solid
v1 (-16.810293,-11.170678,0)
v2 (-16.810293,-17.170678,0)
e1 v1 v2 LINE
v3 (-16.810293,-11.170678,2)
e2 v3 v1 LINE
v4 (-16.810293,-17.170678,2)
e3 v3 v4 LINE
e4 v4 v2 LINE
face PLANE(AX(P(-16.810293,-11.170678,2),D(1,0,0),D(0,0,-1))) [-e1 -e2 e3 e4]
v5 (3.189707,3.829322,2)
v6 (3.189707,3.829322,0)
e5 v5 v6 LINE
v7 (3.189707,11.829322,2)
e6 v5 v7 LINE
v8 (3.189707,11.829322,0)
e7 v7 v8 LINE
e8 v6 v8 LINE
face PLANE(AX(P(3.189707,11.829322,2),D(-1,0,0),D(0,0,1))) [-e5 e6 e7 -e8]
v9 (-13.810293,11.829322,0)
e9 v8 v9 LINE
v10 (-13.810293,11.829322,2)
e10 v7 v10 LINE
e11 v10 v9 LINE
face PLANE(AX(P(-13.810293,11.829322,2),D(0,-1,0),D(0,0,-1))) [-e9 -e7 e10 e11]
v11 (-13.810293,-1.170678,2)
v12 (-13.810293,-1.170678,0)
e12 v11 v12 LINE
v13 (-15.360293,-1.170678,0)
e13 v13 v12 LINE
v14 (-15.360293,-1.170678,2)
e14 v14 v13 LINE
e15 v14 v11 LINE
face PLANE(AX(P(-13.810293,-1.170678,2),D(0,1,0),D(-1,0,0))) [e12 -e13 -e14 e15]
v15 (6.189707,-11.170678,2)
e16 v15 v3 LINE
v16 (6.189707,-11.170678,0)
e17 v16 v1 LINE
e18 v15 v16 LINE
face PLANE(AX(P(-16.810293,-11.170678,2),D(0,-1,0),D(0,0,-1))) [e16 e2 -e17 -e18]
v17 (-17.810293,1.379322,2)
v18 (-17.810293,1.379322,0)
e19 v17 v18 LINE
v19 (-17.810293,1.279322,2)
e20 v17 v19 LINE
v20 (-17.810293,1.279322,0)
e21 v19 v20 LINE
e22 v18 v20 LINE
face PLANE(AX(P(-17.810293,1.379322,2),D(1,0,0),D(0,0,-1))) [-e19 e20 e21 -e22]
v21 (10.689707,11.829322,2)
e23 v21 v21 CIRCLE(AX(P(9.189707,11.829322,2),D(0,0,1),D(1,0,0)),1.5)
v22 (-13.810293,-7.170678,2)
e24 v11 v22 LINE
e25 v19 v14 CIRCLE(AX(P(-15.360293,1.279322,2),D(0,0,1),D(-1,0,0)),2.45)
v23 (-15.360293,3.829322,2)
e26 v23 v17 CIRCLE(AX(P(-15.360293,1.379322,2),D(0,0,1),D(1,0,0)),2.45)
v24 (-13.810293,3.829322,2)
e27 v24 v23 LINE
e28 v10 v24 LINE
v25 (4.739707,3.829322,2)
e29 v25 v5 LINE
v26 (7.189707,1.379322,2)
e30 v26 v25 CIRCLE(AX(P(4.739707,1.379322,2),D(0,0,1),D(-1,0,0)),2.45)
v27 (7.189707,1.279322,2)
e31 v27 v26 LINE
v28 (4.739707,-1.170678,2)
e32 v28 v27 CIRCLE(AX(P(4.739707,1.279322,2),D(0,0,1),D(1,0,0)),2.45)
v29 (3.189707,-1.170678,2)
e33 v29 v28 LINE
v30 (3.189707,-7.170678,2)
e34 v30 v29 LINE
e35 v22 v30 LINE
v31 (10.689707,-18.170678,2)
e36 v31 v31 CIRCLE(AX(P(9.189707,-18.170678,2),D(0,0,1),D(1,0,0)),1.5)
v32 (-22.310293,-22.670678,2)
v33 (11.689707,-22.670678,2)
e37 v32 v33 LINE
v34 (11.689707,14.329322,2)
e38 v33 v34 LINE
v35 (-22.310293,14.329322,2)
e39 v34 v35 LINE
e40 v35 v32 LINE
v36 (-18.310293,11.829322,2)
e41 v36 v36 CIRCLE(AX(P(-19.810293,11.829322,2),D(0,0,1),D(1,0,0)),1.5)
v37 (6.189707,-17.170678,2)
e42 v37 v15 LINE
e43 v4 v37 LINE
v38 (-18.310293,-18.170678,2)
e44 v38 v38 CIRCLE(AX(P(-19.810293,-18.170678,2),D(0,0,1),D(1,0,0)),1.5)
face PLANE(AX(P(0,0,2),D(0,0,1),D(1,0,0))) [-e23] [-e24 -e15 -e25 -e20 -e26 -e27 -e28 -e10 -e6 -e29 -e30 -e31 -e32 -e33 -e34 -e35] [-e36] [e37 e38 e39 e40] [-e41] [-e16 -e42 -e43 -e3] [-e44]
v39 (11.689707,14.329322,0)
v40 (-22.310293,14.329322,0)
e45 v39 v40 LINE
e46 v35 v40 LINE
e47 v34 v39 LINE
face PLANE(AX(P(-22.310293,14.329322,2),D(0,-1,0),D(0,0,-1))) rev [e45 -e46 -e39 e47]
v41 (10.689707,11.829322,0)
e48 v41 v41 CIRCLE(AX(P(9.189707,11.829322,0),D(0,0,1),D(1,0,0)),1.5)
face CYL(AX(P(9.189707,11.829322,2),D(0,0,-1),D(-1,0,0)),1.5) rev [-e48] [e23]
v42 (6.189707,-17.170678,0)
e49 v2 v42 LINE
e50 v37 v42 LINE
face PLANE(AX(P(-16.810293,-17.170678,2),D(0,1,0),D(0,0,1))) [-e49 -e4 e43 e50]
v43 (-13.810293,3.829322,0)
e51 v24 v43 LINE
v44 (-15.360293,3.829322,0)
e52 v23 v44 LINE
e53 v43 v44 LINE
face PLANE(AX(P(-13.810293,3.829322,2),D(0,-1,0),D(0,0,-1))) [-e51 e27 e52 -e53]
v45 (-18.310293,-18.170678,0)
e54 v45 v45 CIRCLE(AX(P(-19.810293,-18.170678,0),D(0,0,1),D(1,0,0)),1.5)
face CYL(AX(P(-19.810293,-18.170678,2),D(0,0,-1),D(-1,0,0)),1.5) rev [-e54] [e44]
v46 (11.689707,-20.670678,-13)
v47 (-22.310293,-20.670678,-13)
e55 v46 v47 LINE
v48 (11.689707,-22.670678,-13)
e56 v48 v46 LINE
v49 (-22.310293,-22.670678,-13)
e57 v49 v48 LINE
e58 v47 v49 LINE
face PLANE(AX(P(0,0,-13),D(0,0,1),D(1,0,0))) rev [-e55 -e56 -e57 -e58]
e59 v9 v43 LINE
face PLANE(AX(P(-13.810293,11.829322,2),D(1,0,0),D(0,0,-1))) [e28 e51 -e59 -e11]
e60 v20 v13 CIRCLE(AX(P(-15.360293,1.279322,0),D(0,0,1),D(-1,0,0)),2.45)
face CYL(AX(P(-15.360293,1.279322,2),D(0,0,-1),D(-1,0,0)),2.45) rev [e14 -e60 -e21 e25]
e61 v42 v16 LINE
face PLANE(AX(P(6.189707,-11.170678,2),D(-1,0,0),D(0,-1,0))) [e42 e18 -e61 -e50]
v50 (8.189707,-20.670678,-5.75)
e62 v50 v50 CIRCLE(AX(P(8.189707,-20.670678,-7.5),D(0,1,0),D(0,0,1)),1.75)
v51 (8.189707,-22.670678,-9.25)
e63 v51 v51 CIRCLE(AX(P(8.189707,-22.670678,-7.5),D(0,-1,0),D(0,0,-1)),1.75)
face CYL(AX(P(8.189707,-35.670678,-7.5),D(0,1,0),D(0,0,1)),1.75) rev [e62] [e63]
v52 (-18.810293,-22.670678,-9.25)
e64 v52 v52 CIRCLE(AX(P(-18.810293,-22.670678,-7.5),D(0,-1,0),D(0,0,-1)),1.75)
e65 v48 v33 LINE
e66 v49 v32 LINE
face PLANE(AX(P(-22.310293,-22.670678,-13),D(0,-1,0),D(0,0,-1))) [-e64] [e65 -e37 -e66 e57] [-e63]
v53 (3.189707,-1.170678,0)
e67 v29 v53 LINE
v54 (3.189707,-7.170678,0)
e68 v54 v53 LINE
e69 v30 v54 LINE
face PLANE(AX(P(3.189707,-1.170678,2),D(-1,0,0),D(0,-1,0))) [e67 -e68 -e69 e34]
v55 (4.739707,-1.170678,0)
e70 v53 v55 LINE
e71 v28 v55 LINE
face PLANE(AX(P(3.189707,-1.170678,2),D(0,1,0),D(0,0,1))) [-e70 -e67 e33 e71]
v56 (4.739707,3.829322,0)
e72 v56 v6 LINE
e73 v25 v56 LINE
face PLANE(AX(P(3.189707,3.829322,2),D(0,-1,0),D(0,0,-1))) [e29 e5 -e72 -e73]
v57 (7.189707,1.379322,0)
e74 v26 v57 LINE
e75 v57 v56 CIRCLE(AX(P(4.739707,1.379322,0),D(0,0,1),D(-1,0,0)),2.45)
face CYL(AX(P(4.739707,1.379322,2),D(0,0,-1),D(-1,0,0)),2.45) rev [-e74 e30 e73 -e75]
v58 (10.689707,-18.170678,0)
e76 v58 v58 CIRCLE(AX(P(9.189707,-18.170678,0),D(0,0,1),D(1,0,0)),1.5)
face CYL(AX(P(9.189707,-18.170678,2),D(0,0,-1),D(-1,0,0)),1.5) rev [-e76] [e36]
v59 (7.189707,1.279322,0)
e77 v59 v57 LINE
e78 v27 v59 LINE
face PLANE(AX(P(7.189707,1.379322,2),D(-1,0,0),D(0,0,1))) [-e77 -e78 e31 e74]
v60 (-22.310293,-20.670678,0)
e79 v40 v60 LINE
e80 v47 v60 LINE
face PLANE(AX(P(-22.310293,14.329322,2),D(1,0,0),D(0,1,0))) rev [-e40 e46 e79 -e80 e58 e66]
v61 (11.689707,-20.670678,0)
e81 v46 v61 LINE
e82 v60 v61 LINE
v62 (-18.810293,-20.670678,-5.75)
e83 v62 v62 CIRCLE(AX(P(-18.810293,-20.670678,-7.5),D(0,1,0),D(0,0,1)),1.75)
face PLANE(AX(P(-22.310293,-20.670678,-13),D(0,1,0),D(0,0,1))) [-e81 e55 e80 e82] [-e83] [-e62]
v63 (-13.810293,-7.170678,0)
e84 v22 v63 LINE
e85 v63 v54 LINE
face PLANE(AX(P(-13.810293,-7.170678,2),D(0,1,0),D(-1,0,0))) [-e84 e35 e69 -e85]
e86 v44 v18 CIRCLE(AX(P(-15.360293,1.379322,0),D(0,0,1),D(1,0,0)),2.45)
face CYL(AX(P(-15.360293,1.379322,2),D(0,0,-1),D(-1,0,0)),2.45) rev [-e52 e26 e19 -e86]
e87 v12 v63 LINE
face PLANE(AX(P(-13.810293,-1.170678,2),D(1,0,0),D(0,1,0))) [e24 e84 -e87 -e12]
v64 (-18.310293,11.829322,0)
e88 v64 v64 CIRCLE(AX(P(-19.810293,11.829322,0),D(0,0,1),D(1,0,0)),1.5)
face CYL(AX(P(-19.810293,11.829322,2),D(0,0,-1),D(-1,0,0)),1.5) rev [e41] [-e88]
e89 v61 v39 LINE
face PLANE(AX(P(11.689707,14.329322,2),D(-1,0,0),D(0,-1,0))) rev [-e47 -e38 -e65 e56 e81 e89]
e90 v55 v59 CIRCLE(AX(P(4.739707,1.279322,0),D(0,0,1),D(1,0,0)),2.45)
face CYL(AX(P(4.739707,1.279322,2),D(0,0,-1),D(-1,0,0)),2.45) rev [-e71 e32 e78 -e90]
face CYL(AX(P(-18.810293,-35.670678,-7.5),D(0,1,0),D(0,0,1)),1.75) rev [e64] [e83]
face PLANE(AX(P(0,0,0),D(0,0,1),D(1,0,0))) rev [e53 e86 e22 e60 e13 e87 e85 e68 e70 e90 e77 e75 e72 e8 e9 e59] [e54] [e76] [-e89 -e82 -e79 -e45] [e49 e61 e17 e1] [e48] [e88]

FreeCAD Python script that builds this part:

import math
import FreeCAD as App
import Part
import Sketcher

V = App.Vector

doc = App.newDocument("Part")
body = doc.addObject("PartDesign::Body", "Body")

# Sketch on XY plane
sketch1 = body.newObject("Sketcher::SketchObject", "Sketch")
sketch1.AttachmentSupport = (doc.getObject("XY_Plane"), [""])
sketch1.MapMode = "FlatFace"
sketch1.addGeometry([
    Part.LineSegment(V(-22.31, 14.33, 0), V(-22.31, -20.67, 0)),  # 0
    Part.LineSegment(V(-22.31, -20.67, 0), V(11.69, -20.67, 0)),  # 1
    Part.LineSegment(V(11.69, -20.67, 0), V(11.69, 14.33, 0)),  # 2
    Part.LineSegment(V(11.69, 14.33, 0), V(-22.31, 14.33, 0)),  # 3
    Part.Circle(V(-19.81, -18.17, 0), V(0, 0, 1), 1.5),  # 4
    Part.LineSegment(V(6.19, -17.17, 0), V(-16.81, -17.17, 0)),  # 5
    Part.LineSegment(V(-16.81, -17.17, 0), V(-16.81, -11.17, 0)),  # 6
    Part.LineSegment(V(-16.81, -11.17, 0), V(6.19, -11.17, 0)),  # 7
    Part.LineSegment(V(6.19, -11.17, 0), V(6.19, -17.17, 0)),  # 8
    Part.Circle(V(9.19, -18.17, 0), V(0, 0, 1), 1.5),  # 9
    Part.Circle(V(-19.81, 11.83, 0), V(0, 0, 1), 1.5),  # 10
    Part.LineSegment(V(-13.81, -7.17, 0), V(-13.81, -1.17, 0)),  # 11
    Part.LineSegment(V(-13.81, -1.17, 0), V(-15.36, -1.17, 0)),  # 12
    Part.ArcOfCircle(Part.Circle(V(-15.36, 1.28, 0), V(0, 0, 1), 2.45), math.radians(180), math.radians(270)),  # 13
    Part.LineSegment(V(-17.81, 1.28, 0), V(-17.81, 1.38, 0)),  # 14
    Part.ArcOfCircle(Part.Circle(V(-15.36, 1.38, 0), V(0, 0, 1), 2.45), math.radians(90), math.radians(180)),  # 15
    Part.LineSegment(V(-15.36, 3.83, 0), V(-13.81, 3.83, 0)),  # 16
    Part.LineSegment(V(-13.81, 3.83, 0), V(-13.81, 11.83, 0)),  # 17
    Part.LineSegment(V(-13.81, 11.83, 0), V(3.19, 11.83, 0)),  # 18
    Part.LineSegment(V(3.19, 11.83, 0), V(3.19, 3.83, 0)),  # 19
    Part.LineSegment(V(3.19, 3.83, 0), V(4.74, 3.83, 0)),  # 20
    Part.ArcOfCircle(Part.Circle(V(4.74, 1.38, 0), V(0, 0, 1), 2.45), math.radians(0), math.radians(90)),  # 21
    Part.LineSegment(V(7.19, 1.38, 0), V(7.19, 1.28, 0)),  # 22
    Part.ArcOfCircle(Part.Circle(V(4.74, 1.28, 0), V(0, 0, 1), 2.45), math.radians(-90), math.radians(0)),  # 23
    Part.LineSegment(V(4.74, -1.17, 0), V(3.19, -1.17, 0)),  # 24
    Part.LineSegment(V(3.19, -1.17, 0), V(3.19, -7.17, 0)),  # 25
    Part.LineSegment(V(3.19, -7.17, 0), V(-13.81, -7.17, 0)),  # 26
    Part.Circle(V(9.19, 11.83, 0), V(0, 0, 1), 1.5),  # 27
], False)
sketch1.addConstraint([
    Sketcher.Constraint("Coincident", 0, 2, 1, 1),
    Sketcher.Constraint("Coincident", 1, 2, 2, 1),
    Sketcher.Constraint("Coincident", 2, 2, 3, 1),
    Sketcher.Constraint("Coincident", 3, 2, 0, 1),
    Sketcher.Constraint("Coincident", 5, 2, 6, 1),
    Sketcher.Constraint("Coincident", 6, 2, 7, 1),
    Sketcher.Constraint("Coincident", 7, 2, 8, 1),
    Sketcher.Constraint("Coincident", 8, 2, 5, 1),
    Sketcher.Constraint("Coincident", 11, 2, 12, 1),
    Sketcher.Constraint("Tangent", 12, 2, 13, 2),
    Sketcher.Constraint("Tangent", 13, 1, 14, 1),
    Sketcher.Constraint("Tangent", 14, 2, 15, 2),
    Sketcher.Constraint("Tangent", 15, 1, 16, 1),
    Sketcher.Constraint("Coincident", 16, 2, 17, 1),
    Sketcher.Constraint("Coincident", 17, 2, 18, 1),
    Sketcher.Constraint("Coincident", 18, 2, 19, 1),
    Sketcher.Constraint("Coincident", 19, 2, 20, 1),
    Sketcher.Constraint("Tangent", 20, 2, 21, 2),
    Sketcher.Constraint("Tangent", 21, 1, 22, 1),
    Sketcher.Constraint("Tangent", 22, 2, 23, 2),
    Sketcher.Constraint("Tangent", 23, 1, 24, 1),
    Sketcher.Constraint("Coincident", 24, 2, 25, 1),
    Sketcher.Constraint("Coincident", 25, 2, 26, 1),
    Sketcher.Constraint("Coincident", 26, 2, 11, 1),
    Sketcher.Constraint("Vertical", 0),
    Sketcher.Constraint("Horizontal", 1),
    Sketcher.Constraint("Vertical", 2),
    Sketcher.Constraint("Horizontal", 3),
    Sketcher.Constraint("Horizontal", 5),
    Sketcher.Constraint("Vertical", 6),
    Sketcher.Constraint("Horizontal", 7),
    Sketcher.Constraint("Vertical", 8),
    Sketcher.Constraint("Vertical", 11),
    Sketcher.Constraint("Horizontal", 12),
    Sketcher.Constraint("Vertical", 14),
    Sketcher.Constraint("Horizontal", 16),
    Sketcher.Constraint("Vertical", 17),
    Sketcher.Constraint("Horizontal", 18),
    Sketcher.Constraint("Vertical", 19),
    Sketcher.Constraint("Horizontal", 20),
    Sketcher.Constraint("Vertical", 22),
    Sketcher.Constraint("Horizontal", 24),
    Sketcher.Constraint("Vertical", 25),
    Sketcher.Constraint("Horizontal", 26),
    Sketcher.Constraint("Equal", 4, 9),
    Sketcher.Constraint("Equal", 9, 10),
    Sketcher.Constraint("Equal", 13, 15),
    Sketcher.Constraint("Equal", 15, 21),
    Sketcher.Constraint("Equal", 21, 23),
    Sketcher.Constraint("Equal", 10, 27),
    Sketcher.Constraint("Horizontal", 4, 3, 9, 3),
    Sketcher.Constraint("Horizontal", 15, 3, 21, 3),
    Sketcher.Constraint("Horizontal", 13, 3, 23, 3),
    Sketcher.Constraint("Horizontal", 10, 3, 27, 3),
    Sketcher.Constraint("Horizontal", 27, 3, 17, 2),
    Sketcher.Constraint("Vertical", 4, 3, 10, 3),
    Sketcher.Constraint("Vertical", 9, 3, 27, 3),
    Sketcher.Constraint("Vertical", 11, 2, 16, 2),
    Sketcher.Constraint("Vertical", 19, 2, 24, 2),
    Sketcher.Constraint("Equal", 16, 20),
    Sketcher.Constraint("Equal", 8, 11),
    Sketcher.Constraint("Diameter", 4, 3.0),
    Sketcher.Constraint("DistanceX", 1, 1, 1, 2, 34.0),
    Sketcher.Constraint("DistanceX", 5, 2, 5, 1, 23.0),
    Sketcher.Constraint("DistanceX", 18, 1, 18, 2, 17.0),
    Sketcher.Constraint("DistanceY", 0, 2, 0, 1, 35.0),
    Sketcher.Constraint("DistanceY", 6, 1, 6, 2, 6.0),
    Sketcher.Constraint("DistanceY", 17, 1, 17, 2, 8.0),
    Sketcher.Constraint("Radius", 13, 2.45),
    Sketcher.Constraint("DistanceY", 14, 1, 14, 2, 0.1),
    Sketcher.Constraint("DistanceX", 4, 3, 9, 3, 29.0),
    Sketcher.Constraint("DistanceY", 4, 3, 10, 3, 30.0),
    Sketcher.Constraint("DistanceX", 4, 3, 5, 2, 3.0),
    Sketcher.Constraint("DistanceY", 4, 3, 5, 2, 1.0),
    Sketcher.Constraint("DistanceX", 6, 2, 11, 2, 3.0),
    Sketcher.Constraint("DistanceX", 13, 1, 11, 2, 4.0),
    Sketcher.Constraint("DistanceX", 0, 2, 4, 3, 2.5),
    Sketcher.Constraint("DistanceY", 0, 2, 4, 3, 2.5),
    Sketcher.Constraint("DistanceY", 4, 3, -1, 1, 18.170678),
    Sketcher.Constraint("DistanceX", 4, 3, -1, 1, 19.810293),
])
pad1 = body.newObject("PartDesign::Pad", "Pad")
pad1.Profile = sketch1
pad1.Length = 2

# Sketch on XY plane
sketch2 = body.newObject("Sketcher::SketchObject", "Sketch001")
sketch2.AttachmentSupport = (doc.getObject("XY_Plane"), [""])
sketch2.MapMode = "FlatFace"
sketch2.AttachmentOffset = App.Placement(V(0, 0, 2), App.Rotation())
sketch2.addGeometry([
    Part.LineSegment(V(-22.3, -20.7, 0), V(-22.3, -22.7, 0)),
    Part.LineSegment(V(-22.3, -22.7, 0), V(11.7, -22.7, 0)),
    Part.LineSegment(V(11.7, -22.7, 0), V(11.7, -20.7, 0)),
    Part.LineSegment(V(11.7, -20.7, 0), V(-22.3, -20.7, 0)),
], False)
sketch2.addConstraint([
    Sketcher.Constraint("Coincident", 0, 2, 1, 1),
    Sketcher.Constraint("Coincident", 1, 2, 2, 1),
    Sketcher.Constraint("Coincident", 2, 2, 3, 1),
    Sketcher.Constraint("Coincident", 3, 2, 0, 1),
    Sketcher.Constraint("Vertical", 0),
    Sketcher.Constraint("Horizontal", 1),
    Sketcher.Constraint("Vertical", 2),
    Sketcher.Constraint("Horizontal", 3),
    Sketcher.Constraint("DistanceX", 1, 1, 1, 2, 34.0),
    Sketcher.Constraint("DistanceY", 0, 2, 0, 1, 2.0),
    Sketcher.Constraint("DistanceY", 0, 2, -1, 1, 22.670678),
    Sketcher.Constraint("DistanceX", 0, 2, -1, 1, 22.310293),
])
pad2 = body.newObject("PartDesign::Pad", "Pad001")
pad2.Profile = sketch2
pad2.Length = 15
pad2.Reversed = True

# Sketch on XZ plane
sketch3 = body.newObject("Sketcher::SketchObject", "Sketch002")
sketch3.AttachmentSupport = (doc.getObject("XZ_Plane"), [""])
sketch3.MapMode = "FlatFace"
sketch3.AttachmentOffset = App.Placement(V(0, 0, 20.670678), App.Rotation())
sketch3.addGeometry([
    Part.Circle(V(8.2, -7.5, 0), V(0, 0, 1), 1.8),
    Part.Circle(V(-18.8, -7.5, 0), V(0, 0, 1), 1.8),
], False)
sketch3.addConstraint([
    Sketcher.Constraint("Equal", 0, 1),
    Sketcher.Constraint("Horizontal", 0, 3, 1, 3),
    Sketcher.Constraint("Diameter", 0, 3.5),
    Sketcher.Constraint("DistanceX", 1, 3, 0, 3, 27.0),
    Sketcher.Constraint("DistanceY", 0, 3, -1, 1, 7.5),
    Sketcher.Constraint("DistanceX", -1, 1, 0, 3, 8.189707),
])
pocket1 = body.newObject("PartDesign::Pocket", "Pocket")
pocket1.Profile = sketch3
pocket1.Length = 15
pocket1.Reversed = True

doc.recompute()
